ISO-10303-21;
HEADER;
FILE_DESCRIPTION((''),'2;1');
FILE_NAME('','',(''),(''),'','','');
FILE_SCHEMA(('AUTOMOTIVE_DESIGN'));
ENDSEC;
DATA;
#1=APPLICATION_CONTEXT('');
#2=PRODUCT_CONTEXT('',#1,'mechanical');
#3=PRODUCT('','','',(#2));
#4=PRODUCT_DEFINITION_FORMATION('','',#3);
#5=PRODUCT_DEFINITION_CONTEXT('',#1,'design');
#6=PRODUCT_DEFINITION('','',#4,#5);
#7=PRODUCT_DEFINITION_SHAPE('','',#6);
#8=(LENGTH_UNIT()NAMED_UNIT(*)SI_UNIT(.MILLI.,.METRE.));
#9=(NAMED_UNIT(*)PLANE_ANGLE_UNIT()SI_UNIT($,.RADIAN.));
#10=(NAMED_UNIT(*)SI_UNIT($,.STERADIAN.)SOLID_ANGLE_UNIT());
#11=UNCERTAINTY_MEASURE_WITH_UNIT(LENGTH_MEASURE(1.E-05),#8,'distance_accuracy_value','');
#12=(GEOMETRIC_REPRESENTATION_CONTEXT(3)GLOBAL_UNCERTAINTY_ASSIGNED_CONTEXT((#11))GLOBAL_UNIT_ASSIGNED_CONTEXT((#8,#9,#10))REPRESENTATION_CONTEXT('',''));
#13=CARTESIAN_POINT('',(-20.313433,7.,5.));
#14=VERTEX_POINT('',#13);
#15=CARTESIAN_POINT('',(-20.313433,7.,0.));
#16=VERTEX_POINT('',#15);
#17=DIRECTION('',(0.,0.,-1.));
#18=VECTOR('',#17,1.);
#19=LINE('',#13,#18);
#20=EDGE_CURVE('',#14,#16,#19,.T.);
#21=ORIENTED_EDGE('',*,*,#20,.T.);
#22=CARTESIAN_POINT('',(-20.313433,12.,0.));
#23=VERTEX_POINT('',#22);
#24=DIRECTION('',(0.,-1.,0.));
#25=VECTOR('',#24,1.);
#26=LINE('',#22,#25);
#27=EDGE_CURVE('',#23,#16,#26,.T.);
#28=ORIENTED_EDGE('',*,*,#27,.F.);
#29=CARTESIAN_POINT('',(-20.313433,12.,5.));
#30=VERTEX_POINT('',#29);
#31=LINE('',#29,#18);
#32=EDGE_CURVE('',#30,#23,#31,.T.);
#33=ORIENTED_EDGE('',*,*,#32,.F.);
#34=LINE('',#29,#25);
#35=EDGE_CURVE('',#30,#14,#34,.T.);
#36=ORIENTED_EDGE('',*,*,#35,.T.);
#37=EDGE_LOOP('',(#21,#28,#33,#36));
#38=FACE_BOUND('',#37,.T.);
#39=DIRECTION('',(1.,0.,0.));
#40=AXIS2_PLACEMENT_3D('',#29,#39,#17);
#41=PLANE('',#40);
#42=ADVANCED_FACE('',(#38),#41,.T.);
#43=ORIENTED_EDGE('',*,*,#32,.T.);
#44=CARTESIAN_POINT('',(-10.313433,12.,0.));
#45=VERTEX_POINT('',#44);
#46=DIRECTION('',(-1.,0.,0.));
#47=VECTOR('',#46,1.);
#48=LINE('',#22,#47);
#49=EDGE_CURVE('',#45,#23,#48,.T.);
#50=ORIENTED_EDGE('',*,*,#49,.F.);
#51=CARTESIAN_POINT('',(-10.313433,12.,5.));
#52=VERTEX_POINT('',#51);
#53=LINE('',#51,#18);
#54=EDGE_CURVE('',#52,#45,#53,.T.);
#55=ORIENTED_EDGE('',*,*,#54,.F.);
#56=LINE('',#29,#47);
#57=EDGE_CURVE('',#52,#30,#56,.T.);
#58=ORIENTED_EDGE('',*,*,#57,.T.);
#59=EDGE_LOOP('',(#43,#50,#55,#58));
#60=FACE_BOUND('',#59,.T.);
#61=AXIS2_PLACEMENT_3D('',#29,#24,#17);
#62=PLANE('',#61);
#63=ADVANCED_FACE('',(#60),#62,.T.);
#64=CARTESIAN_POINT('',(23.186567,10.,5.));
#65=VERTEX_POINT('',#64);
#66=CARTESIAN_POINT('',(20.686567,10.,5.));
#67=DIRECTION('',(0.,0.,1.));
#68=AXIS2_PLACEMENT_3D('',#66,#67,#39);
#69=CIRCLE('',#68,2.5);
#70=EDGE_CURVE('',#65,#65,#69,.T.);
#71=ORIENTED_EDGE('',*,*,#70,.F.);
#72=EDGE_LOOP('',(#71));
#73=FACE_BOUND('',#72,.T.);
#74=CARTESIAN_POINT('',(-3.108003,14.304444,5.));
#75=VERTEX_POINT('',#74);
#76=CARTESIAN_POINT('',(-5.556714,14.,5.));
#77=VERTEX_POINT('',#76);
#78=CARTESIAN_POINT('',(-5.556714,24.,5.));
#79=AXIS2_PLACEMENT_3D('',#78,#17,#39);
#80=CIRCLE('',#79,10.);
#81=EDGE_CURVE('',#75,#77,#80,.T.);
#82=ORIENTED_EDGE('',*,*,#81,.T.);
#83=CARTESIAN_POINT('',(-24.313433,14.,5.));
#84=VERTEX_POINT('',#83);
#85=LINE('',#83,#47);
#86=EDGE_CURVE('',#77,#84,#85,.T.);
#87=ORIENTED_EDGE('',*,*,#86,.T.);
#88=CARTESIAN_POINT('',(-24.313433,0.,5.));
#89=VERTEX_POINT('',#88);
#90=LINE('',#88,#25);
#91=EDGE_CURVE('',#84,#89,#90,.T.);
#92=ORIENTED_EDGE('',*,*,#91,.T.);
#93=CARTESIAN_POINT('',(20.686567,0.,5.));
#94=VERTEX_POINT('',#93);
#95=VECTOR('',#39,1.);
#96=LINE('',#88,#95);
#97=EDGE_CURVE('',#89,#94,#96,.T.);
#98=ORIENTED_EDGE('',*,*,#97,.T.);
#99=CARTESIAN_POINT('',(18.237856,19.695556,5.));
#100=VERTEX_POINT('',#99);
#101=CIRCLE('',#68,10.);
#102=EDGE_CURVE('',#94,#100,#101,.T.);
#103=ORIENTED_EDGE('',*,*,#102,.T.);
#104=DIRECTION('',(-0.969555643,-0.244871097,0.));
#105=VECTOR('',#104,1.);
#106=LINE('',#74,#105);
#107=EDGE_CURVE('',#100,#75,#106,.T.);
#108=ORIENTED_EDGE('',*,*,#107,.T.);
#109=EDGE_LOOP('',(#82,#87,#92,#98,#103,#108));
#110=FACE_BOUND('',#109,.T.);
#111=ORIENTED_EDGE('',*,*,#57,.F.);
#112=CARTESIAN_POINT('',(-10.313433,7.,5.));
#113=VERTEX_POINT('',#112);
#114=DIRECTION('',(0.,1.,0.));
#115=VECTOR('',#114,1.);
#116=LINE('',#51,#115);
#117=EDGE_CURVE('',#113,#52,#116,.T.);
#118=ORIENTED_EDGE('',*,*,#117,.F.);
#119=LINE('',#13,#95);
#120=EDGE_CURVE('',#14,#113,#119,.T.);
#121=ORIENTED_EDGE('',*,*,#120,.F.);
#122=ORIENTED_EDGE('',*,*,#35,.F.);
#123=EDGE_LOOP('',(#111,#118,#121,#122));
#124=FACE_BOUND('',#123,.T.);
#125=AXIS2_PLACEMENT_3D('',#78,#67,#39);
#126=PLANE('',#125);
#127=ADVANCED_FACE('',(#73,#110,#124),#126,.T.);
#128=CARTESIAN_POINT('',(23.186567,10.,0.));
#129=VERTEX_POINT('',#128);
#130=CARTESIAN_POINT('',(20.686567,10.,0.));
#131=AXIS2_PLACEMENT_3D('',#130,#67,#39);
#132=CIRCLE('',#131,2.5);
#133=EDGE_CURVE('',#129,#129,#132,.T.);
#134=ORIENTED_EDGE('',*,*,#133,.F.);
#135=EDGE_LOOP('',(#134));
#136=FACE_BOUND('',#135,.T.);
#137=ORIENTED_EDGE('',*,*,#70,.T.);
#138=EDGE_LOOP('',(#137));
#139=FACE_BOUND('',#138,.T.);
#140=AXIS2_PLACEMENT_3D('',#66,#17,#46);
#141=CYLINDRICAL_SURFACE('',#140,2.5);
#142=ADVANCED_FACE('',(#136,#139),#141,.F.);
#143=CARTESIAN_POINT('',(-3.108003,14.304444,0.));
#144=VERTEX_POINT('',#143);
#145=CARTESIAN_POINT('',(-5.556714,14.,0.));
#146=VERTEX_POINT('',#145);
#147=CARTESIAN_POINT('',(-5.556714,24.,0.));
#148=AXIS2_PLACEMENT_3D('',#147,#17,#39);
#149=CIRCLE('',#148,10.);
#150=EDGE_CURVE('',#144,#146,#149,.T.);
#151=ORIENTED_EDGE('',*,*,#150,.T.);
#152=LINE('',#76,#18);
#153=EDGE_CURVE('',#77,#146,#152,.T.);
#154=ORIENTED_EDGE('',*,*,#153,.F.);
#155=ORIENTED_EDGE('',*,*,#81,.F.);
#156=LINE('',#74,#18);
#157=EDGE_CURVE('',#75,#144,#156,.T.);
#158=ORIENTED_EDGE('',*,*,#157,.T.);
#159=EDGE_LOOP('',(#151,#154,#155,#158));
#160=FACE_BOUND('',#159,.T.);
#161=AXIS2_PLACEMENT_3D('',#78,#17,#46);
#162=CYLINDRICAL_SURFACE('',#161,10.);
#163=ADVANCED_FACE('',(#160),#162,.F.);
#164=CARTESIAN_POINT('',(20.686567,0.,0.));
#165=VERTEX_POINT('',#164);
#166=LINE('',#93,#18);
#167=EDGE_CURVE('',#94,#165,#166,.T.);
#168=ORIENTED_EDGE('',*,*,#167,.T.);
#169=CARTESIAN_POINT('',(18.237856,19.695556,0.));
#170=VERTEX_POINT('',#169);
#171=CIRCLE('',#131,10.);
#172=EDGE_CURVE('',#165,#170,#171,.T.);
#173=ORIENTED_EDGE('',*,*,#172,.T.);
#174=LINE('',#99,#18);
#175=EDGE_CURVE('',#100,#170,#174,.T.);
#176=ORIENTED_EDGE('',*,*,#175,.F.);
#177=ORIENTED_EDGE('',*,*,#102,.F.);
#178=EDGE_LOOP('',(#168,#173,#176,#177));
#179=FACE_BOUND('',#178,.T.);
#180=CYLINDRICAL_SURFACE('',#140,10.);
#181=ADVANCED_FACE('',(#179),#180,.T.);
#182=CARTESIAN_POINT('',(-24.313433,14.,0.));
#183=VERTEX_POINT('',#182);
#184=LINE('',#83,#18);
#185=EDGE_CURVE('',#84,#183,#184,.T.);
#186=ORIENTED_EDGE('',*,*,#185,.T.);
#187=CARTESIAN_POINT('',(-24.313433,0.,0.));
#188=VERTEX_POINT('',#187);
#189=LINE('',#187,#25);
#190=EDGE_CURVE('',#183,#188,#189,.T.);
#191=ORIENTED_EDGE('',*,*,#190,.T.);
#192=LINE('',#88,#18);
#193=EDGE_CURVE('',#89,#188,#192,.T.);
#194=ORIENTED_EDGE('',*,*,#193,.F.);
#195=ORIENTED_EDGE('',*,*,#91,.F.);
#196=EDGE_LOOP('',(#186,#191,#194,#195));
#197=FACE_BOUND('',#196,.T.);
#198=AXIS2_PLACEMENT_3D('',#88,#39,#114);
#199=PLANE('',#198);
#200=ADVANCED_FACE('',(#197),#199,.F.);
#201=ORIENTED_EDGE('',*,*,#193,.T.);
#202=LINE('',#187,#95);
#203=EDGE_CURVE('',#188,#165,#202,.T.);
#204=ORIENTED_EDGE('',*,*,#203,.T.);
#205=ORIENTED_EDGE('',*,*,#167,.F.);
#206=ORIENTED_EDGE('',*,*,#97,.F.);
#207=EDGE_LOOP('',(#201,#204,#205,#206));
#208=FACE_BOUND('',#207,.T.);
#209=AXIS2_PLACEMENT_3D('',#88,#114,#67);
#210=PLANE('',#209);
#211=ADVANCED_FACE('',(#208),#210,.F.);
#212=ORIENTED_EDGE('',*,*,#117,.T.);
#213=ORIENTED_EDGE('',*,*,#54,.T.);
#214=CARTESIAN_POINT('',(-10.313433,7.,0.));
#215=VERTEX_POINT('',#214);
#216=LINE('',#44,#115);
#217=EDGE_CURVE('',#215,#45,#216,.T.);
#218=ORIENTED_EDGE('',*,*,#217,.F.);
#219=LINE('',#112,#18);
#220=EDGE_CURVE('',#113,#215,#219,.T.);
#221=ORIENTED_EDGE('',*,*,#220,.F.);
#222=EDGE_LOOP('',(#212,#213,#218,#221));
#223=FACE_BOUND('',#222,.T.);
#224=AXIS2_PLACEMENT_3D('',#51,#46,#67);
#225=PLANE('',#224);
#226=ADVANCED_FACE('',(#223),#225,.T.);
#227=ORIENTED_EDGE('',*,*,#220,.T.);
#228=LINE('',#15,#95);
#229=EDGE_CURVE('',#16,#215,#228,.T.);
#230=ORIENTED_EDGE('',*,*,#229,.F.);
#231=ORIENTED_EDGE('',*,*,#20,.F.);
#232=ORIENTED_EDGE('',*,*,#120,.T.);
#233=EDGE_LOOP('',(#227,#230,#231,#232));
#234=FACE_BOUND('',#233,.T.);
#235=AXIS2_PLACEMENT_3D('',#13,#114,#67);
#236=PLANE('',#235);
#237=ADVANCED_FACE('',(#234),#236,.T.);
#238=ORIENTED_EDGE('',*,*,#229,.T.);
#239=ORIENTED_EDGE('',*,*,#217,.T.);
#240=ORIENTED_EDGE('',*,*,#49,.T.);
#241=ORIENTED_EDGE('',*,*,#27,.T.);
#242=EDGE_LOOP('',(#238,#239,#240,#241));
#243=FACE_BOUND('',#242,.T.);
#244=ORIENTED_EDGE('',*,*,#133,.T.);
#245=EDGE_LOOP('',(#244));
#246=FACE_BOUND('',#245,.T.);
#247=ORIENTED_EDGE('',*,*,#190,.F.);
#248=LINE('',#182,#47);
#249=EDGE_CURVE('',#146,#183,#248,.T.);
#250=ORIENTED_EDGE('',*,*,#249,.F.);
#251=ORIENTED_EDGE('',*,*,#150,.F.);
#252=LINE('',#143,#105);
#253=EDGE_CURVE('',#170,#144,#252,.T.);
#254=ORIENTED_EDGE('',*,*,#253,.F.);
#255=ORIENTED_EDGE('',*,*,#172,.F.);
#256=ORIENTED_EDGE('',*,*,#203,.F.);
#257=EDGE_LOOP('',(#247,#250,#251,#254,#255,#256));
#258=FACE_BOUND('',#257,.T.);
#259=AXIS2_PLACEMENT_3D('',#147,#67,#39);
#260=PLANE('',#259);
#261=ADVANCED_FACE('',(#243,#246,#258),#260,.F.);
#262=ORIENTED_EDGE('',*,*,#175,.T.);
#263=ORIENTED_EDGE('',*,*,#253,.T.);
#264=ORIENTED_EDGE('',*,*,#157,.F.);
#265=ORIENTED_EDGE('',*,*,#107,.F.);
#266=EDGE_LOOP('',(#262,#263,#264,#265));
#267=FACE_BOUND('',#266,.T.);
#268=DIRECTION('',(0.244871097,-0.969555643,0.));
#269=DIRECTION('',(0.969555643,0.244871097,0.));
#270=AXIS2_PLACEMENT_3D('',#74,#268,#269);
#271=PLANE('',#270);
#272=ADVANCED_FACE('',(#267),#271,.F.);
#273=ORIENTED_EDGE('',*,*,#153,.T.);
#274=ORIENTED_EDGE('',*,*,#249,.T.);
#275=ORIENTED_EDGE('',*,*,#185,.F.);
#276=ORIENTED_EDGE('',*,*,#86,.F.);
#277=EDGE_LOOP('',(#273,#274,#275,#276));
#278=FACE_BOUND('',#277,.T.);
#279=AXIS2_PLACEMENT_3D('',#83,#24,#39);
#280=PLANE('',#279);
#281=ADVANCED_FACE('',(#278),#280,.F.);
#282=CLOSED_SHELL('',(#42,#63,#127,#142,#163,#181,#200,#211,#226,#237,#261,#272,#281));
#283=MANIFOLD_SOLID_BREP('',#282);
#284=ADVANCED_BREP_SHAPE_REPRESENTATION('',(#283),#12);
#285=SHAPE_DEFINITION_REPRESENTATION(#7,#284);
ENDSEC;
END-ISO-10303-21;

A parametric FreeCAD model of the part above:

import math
import FreeCAD as App
import Part
import Sketcher
from FreeCAD import Vector


def add_polygon(sketch, points):
    """Adds a closed chain of lines whose ends are joined by coincident constraints."""
    first, n = sketch.GeometryCount, len(points)
    for a, b in zip(points, points[1:] + points[:1]):
        sketch.addGeometry(Part.LineSegment(App.Vector(*a, 0), App.Vector(*b, 0)), False)
    for i in range(n):
        sketch.addConstraint(Sketcher.Constraint("Coincident", first + i, 2, first + (i + 1) % n, 1))

doc = App.newDocument("Part")
body = doc.addObject("PartDesign::Body", "Body")

sketch1 = body.newObject("Sketcher::SketchObject", "Sketch")
sketch1.AttachmentSupport = (doc.getObject("XY_Plane"), [""])
sketch1.MapMode = "FlatFace"
sketch1.addGeometry(Part.LineSegment(Vector(-24.3, 0, 0), Vector(20.7, 0, 0)), False)
sketch1.addGeometry(Part.ArcOfCircle(Part.Circle(Vector(20.7, 10, 0), Vector(0, 0, 1), 10), math.radians(-90), math.radians(104)), False)
sketch1.addGeometry(Part.LineSegment(Vector(18.2, 19.7, 0), Vector(-3.1, 14.3, 0)), False)
sketch1.addGeometry(Part.ArcOfCircle(Part.Circle(Vector(-5.6, 24, 0), Vector(0, 0, 1), 10), math.radians(-90), math.radians(-75.83)), False)
sketch1.addGeometry(Part.LineSegment(Vector(-5.6, 14, 0), Vector(-24.3, 14, 0)), False)
sketch1.addGeometry(Part.LineSegment(Vector(-24.3, 14, 0), Vector(-24.3, 0, 0)), False)
add_polygon(sketch1, [(-10.3, 7), (-20.3, 7), (-20.3, 12), (-10.3, 12)])
sketch1.addGeometry(Part.Circle(Vector(20.7, 10, 0), Vector(0, 0, 1), 2.5), False)
sketch1.addConstraint([
    Sketcher.Constraint("Tangent", 0, 2, 1, 1),
    Sketcher.Constraint("Tangent", 1, 2, 2, 1),
    Sketcher.Constraint("Tangent", 2, 2, 3, 2),
    Sketcher.Constraint("Tangent", 3, 1, 4, 1),
    Sketcher.Constraint("Coincident", 4, 2, 5, 1),
    Sketcher.Constraint("Coincident", 5, 2, 0, 1),
    Sketcher.Constraint("Horizontal", 0),
    Sketcher.Constraint("Horizontal", 4),
    Sketcher.Constraint("Vertical", 5),
    Sketcher.Constraint("Horizontal", 6),
    Sketcher.Constraint("Vertical", 7),
    Sketcher.Constraint("Horizontal", 8),
    Sketcher.Constraint("Vertical", 9),
    Sketcher.Constraint("Coincident", 10, 3, 1, 3),
    Sketcher.Constraint("Equal", 1, 3),
    Sketcher.Constraint("PointOnObject", 0, 2, -1),
    Sketcher.Constraint("Diameter", 10, 5.0),
    Sketcher.Constraint("Radius", 1, 10.0),
    Sketcher.Constraint("DistanceX", 0, 1, 0, 2, 45.0),
    Sketcher.Constraint("DistanceX", 6, 2, 6, 1, 10.0),
    Sketcher.Constraint("DistanceY", 5, 2, 5, 1, 14.0),
    Sketcher.Constraint("DistanceY", 7, 1, 7, 2, 5.0),
    Sketcher.Constraint("DistanceY", -1, 1, 6, 2, 7.0),
    Sketcher.Constraint("DistanceX", 4, 2, 6, 2, 4.0),
    Sketcher.Constraint("DistanceX", 4, 2, 4, 1, 18.756719),
    Sketcher.Constraint("DistanceX", -1, 1, 1, 3, 20.686567),
])
pad1 = body.newObject("PartDesign::Pad", "Pad")
pad1.Profile = sketch1
pad1.Length = 5

doc.recompute()
